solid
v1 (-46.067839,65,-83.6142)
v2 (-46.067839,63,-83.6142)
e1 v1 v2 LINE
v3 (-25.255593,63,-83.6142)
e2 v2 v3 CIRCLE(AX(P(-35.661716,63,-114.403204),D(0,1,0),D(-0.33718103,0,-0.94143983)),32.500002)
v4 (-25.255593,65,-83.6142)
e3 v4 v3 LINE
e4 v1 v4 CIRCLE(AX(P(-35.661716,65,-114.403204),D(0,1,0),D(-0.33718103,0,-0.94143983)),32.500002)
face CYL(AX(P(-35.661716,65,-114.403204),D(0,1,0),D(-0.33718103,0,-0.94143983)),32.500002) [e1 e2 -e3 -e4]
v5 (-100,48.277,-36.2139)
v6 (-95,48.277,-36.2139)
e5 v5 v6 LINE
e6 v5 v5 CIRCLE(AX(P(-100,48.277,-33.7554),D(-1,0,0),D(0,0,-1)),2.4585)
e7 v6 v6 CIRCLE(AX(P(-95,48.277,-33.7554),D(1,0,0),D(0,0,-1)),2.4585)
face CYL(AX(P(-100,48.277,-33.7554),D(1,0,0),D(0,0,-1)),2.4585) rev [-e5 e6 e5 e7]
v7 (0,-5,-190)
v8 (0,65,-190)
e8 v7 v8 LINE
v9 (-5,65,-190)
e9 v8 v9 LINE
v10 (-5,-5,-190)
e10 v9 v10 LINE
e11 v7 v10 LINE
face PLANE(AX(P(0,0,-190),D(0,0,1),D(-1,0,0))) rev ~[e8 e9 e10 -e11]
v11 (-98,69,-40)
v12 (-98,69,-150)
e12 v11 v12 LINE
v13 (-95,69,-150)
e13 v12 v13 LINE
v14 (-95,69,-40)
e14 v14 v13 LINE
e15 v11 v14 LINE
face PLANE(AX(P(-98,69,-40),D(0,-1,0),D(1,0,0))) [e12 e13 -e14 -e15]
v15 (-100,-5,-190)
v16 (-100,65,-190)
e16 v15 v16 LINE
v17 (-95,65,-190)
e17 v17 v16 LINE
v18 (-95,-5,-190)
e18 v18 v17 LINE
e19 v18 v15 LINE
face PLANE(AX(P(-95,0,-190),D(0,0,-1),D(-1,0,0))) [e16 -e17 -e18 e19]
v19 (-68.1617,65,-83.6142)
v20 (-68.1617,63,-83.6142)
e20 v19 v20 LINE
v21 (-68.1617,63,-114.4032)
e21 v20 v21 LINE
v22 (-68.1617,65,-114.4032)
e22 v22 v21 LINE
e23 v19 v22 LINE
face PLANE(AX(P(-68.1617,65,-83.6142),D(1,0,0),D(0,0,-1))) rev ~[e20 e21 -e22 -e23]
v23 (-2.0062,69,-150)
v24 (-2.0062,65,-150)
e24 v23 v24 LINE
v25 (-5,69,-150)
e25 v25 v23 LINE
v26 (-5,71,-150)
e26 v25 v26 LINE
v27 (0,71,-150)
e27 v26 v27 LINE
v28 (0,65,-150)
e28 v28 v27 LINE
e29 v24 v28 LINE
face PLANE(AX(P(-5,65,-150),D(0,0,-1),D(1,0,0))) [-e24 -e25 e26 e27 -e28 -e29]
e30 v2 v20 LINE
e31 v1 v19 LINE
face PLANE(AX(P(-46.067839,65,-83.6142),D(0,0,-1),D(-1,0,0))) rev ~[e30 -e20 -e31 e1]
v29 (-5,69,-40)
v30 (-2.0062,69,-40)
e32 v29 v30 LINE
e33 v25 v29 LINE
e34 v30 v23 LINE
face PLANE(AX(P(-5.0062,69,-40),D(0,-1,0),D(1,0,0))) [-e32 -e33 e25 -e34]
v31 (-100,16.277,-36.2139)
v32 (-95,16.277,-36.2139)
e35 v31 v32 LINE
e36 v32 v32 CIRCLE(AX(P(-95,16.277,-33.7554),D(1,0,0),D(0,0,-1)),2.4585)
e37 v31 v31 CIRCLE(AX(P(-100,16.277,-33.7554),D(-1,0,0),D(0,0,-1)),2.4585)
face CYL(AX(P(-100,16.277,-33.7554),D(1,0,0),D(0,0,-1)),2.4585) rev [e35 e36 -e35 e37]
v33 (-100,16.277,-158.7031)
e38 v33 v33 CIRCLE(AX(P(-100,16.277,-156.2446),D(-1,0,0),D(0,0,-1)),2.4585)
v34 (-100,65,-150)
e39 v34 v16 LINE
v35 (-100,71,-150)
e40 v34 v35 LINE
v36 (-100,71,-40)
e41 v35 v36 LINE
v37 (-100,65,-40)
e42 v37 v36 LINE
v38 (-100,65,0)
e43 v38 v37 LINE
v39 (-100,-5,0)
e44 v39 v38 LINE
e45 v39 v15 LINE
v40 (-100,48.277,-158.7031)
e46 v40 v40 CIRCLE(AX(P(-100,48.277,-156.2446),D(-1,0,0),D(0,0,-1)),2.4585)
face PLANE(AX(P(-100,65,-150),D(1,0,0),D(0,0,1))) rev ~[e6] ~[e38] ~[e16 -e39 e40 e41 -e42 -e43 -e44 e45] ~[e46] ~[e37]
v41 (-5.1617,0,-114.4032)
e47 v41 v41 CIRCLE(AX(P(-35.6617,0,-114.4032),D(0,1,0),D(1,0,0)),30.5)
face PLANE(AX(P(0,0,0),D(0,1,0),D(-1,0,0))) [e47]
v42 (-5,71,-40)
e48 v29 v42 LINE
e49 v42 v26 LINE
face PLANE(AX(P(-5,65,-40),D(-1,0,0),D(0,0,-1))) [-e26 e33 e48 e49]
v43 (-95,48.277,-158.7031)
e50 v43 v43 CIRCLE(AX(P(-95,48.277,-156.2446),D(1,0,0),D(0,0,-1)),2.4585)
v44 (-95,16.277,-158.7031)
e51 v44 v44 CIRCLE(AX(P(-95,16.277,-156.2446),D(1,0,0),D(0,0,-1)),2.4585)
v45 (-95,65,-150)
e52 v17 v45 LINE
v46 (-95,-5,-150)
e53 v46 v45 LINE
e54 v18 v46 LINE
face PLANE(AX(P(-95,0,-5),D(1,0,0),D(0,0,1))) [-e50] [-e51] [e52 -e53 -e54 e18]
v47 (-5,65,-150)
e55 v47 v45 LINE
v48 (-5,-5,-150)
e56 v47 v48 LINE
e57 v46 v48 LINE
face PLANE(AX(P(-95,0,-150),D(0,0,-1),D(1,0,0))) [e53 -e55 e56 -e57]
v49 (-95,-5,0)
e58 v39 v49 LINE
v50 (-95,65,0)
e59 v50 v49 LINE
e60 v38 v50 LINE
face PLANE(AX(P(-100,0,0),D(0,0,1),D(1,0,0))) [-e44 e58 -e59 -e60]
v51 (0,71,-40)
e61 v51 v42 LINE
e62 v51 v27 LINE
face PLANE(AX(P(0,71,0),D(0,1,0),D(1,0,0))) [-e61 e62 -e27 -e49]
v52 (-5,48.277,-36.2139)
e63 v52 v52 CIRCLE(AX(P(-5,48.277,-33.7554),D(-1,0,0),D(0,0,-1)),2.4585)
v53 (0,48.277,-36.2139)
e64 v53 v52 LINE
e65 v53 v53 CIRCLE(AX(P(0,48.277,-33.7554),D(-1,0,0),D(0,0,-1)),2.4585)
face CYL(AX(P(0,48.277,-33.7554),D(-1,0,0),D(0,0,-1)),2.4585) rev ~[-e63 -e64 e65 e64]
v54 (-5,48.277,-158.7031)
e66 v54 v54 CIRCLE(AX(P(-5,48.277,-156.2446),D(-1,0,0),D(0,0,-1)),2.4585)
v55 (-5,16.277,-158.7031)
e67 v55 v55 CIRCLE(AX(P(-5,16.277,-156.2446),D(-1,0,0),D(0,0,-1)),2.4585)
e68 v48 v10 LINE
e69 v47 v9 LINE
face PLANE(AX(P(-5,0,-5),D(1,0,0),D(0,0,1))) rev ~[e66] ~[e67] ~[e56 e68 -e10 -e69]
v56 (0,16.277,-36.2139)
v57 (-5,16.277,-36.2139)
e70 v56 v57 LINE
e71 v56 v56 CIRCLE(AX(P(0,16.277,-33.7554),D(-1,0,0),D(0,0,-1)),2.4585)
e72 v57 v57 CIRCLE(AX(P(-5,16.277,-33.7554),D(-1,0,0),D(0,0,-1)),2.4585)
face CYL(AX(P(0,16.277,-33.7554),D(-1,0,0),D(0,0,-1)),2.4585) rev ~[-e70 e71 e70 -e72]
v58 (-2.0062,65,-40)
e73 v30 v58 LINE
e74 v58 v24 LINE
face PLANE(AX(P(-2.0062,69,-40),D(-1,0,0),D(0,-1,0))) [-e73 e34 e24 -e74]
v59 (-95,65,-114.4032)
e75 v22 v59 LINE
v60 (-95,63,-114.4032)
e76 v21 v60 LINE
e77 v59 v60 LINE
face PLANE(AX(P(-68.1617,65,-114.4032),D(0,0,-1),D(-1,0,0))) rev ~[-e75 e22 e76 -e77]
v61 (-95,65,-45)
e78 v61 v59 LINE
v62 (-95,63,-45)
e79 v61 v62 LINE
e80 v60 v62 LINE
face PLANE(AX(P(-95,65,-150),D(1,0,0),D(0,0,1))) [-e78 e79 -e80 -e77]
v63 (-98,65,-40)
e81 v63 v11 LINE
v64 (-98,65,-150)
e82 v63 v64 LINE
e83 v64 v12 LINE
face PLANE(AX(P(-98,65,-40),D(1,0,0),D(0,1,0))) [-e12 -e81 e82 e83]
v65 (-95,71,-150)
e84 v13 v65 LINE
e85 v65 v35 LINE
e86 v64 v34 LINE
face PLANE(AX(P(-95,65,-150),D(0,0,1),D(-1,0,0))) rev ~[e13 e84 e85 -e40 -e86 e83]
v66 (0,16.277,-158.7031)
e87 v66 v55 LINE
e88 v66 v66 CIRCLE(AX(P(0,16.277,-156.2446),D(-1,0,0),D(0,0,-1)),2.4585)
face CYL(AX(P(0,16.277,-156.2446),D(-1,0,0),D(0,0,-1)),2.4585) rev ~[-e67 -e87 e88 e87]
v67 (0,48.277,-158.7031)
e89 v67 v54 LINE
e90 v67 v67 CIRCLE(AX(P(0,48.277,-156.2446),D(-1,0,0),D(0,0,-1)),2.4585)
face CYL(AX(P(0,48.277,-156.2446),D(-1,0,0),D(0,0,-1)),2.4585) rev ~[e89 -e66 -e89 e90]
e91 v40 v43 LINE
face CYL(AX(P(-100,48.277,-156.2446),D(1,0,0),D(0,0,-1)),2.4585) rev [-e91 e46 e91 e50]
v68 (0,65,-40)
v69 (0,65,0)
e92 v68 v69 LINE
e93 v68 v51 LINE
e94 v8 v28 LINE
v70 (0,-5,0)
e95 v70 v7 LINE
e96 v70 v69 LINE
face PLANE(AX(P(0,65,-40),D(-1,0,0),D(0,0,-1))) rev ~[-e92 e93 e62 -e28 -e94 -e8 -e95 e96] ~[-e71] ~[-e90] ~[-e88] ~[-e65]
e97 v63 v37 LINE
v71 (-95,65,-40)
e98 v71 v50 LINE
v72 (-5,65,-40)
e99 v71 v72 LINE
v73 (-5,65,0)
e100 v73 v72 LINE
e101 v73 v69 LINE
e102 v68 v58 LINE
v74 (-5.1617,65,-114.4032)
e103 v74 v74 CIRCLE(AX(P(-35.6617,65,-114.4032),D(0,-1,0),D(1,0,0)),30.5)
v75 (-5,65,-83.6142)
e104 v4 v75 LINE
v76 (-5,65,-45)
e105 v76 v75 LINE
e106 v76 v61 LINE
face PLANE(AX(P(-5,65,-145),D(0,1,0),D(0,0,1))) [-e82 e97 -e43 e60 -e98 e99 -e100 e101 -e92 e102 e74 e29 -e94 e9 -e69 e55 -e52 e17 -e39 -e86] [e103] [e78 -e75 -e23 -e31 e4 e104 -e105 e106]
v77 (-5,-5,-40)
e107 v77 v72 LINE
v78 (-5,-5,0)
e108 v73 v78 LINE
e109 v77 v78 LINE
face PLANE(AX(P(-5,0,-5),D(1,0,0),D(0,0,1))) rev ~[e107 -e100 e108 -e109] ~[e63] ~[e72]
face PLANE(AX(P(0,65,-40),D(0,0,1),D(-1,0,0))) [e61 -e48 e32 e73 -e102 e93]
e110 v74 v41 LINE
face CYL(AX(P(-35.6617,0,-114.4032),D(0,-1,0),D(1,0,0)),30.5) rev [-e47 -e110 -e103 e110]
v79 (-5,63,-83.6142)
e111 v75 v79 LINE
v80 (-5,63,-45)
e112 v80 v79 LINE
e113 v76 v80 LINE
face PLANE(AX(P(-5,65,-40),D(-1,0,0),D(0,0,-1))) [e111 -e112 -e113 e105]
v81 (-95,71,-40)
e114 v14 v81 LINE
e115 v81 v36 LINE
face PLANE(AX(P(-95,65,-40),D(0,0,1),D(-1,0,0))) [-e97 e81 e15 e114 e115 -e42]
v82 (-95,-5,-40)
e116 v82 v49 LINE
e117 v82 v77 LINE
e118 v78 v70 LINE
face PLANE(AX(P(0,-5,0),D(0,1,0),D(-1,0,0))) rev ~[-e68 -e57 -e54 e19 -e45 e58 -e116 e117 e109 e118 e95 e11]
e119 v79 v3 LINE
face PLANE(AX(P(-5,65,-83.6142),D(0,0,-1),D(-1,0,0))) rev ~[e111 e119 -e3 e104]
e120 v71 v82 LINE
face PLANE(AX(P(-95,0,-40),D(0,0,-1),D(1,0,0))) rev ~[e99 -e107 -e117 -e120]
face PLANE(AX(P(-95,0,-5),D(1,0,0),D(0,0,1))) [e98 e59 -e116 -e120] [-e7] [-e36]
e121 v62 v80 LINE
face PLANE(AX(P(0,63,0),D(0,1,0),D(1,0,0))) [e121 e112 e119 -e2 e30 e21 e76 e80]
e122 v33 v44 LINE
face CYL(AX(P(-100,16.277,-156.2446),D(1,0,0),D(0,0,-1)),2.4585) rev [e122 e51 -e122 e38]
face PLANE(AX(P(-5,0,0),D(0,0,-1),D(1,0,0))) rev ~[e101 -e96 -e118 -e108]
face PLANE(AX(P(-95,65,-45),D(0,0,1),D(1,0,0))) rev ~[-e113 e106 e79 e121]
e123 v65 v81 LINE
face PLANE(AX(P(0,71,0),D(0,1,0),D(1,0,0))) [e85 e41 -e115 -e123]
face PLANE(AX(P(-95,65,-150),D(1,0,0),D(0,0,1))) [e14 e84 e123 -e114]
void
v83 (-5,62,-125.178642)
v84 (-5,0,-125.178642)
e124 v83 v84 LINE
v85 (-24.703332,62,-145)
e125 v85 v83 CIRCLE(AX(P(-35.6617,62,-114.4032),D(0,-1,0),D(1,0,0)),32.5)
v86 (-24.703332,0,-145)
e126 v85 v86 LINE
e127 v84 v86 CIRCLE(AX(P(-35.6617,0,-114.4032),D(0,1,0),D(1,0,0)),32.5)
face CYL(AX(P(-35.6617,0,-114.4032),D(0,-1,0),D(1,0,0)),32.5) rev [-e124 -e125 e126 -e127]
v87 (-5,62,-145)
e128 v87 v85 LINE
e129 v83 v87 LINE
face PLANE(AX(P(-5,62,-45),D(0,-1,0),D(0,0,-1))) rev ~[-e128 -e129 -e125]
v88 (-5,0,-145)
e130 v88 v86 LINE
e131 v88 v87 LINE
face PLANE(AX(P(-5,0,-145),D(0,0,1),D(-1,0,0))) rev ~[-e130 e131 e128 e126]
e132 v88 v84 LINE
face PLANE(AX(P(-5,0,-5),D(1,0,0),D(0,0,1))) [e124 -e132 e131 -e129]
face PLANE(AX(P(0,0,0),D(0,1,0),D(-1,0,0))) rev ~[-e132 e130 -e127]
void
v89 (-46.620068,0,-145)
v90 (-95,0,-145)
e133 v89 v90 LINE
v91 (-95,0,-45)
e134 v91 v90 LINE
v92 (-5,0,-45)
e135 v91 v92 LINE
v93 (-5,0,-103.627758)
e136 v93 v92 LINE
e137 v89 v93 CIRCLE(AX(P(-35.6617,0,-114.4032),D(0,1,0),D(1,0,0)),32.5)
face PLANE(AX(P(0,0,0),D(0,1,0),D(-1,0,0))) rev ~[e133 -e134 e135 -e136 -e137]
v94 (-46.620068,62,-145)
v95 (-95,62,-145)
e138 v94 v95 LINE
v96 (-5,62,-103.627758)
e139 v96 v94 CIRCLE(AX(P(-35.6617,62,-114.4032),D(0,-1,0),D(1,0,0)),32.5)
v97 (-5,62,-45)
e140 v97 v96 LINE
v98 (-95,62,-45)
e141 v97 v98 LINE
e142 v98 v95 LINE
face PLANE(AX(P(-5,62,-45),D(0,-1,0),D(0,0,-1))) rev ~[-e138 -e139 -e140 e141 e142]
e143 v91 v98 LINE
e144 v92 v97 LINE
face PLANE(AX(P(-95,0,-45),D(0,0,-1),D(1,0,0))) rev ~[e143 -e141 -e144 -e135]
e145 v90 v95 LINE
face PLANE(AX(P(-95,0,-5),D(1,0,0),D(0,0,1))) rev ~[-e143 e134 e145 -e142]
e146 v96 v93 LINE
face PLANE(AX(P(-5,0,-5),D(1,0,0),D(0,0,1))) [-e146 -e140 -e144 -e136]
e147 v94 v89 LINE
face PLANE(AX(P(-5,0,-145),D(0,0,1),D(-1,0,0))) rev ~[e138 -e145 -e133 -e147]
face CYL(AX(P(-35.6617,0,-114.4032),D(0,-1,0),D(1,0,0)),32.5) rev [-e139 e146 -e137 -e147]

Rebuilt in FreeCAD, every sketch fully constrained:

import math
import FreeCAD as App
import Part
import Sketcher
from FreeCAD import Vector

doc = App.newDocument("Part")
params = doc.addObject("Spreadsheet::Sheet", "Params")
for row, (alias, value) in enumerate([
    ("sketch1_width", "5 mm"),
    ("sketch1_height", "190 mm"),
    ("pad1_length", "65 mm"),
    ("sketch2_width", "5 mm"),
    ("sketch2_height", "190 mm"),
    ("sketch2_height2", "40 mm"),
    ("pad2_length", "5 mm"),
    ("sketch3_height", "5 mm"),
    ("sketch3_width", "90 mm"),
    ("pad3_length", "65 mm"),
    ("sketch4_height", "5 mm"),
    ("sketch4_width", "90 mm"),
    ("pad4_length", "65 mm"),
    ("sketch5_diameter", "65 mm"),
    ("sketch5_diameter2", "61 mm"),
    ("pad5_length", "65 mm"),
    ("sketch6_width", "3 mm"),
    ("sketch6_height", "100 mm"),
    ("pad6_length", "90 mm"),
    ("sketch7_diameter", "61 mm"),
    ("pocket1_length", "66.5 mm"),
    ("sketch8_radius", "32.5 mm"),
    ("sketch8_width", "90 mm"),
    ("pocket2_length", "2 mm"),
    ("hole_diameter", "4.917 mm"),
    ("hole_depth", "17.1 mm"),
    ("sketch10_width", "5 mm"),
    ("sketch10_height", "110 mm"),
    ("pad7_length", "6 mm"),
    ("sketch11_width", "3 mm"),
    ("sketch11_height", "4 mm"),
    ("pocket3_length", "110 mm"),
], start=1):
    params.set(f"A{row}", alias)
    params.set(f"B{row}", "=" + value)
    params.setAlias(f"B{row}", alias)

body = doc.addObject("PartDesign::Body", "Body")
body.AllowCompound = True

# Sketch on XZ plane
sketch1 = doc.addObject("Sketcher::SketchObject", "Sketch")
body.addObject(sketch1)
sketch1.AttachmentSupport = (doc.XZ_Plane, [""])
sketch1.MapMode = "FlatFace"
sketch1.addGeometry(Part.LineSegment(Vector(-5, 0, 0), Vector(0, 0, 0)), False)
sketch1.addGeometry(Part.LineSegment(Vector(0, 0, 0), Vector(0, -190, 0)), False)
sketch1.addGeometry(Part.LineSegment(Vector(0, -190, 0), Vector(-5, -190, 0)), False)
sketch1.addGeometry(Part.LineSegment(Vector(-5, -190, 0), Vector(-5, 0, 0)), False)
sketch1.addGeometry(Part.LineSegment(Vector(-100, 0, 0), Vector(-95, 0, 0)), False)
sketch1.addGeometry(Part.LineSegment(Vector(-95, 0, 0), Vector(-95, -190, 0)), False)
sketch1.addGeometry(Part.LineSegment(Vector(-95, -190, 0), Vector(-100, -190, 0)), False)
sketch1.addGeometry(Part.LineSegment(Vector(-100, -190, 0), Vector(-100, 0, 0)), False)
sketch1.addConstraint(Sketcher.Constraint("Coincident", 0, 2, 1, 1))
sketch1.addConstraint(Sketcher.Constraint("Coincident", 1, 2, 2, 1))
sketch1.addConstraint(Sketcher.Constraint("Coincident", 2, 2, 3, 1))
sketch1.addConstraint(Sketcher.Constraint("Coincident", 3, 2, 0, 1))
sketch1.addConstraint(Sketcher.Constraint("Coincident", 4, 2, 5, 1))
sketch1.addConstraint(Sketcher.Constraint("Coincident", 5, 2, 6, 1))
sketch1.addConstraint(Sketcher.Constraint("Coincident", 6, 2, 7, 1))
sketch1.addConstraint(Sketcher.Constraint("Coincident", 7, 2, 4, 1))
sketch1.addConstraint(Sketcher.Constraint("Horizontal", 0))
sketch1.addConstraint(Sketcher.Constraint("Vertical", 1))
sketch1.addConstraint(Sketcher.Constraint("Horizontal", 2))
sketch1.addConstraint(Sketcher.Constraint("Vertical", 3))
sketch1.addConstraint(Sketcher.Constraint("Horizontal", 4))
sketch1.addConstraint(Sketcher.Constraint("Vertical", 5))
sketch1.addConstraint(Sketcher.Constraint("Horizontal", 6))
sketch1.addConstraint(Sketcher.Constraint("Vertical", 7))
sketch1.addConstraint(Sketcher.Constraint("Coincident", 0, 2, -1, 1))
sketch1.addConstraint(Sketcher.Constraint("PointOnObject", 4, 2, -1))
sketch1.addConstraint(Sketcher.Constraint("Horizontal", 2, 2, 5, 2))
sketch1.addConstraint(Sketcher.Constraint("Equal", 2, 4))
sketch1.addConstraint(Sketcher.Constraint("DistanceX", 0, 1, 0, 2, 5.0))
sketch1.addConstraint(Sketcher.Constraint("DistanceY", 1, 2, 1, 1, 190.0))
sketch1.addConstraint(Sketcher.Constraint("DistanceX", 6, 2, -1, 1, 100.0))
sketch1.setExpression("Constraints[20]", "Params.sketch1_width")
sketch1.setExpression("Constraints[21]", "Params.sketch1_height")
pad1 = doc.addObject("PartDesign::Pad", "Pad")
body.addObject(pad1)
pad1.Profile = sketch1
pad1.setExpression("Length", "Params.pad1_length")
pad1.Reversed = True

# Sketch on XZ plane
sketch2 = doc.addObject("Sketcher::SketchObject", "Sketch001")
body.addObject(sketch2)
sketch2.AttachmentSupport = (doc.XZ_Plane, [""])
sketch2.MapMode = "FlatFace"
sketch2.addGeometry(Part.LineSegment(Vector(-5, 0, 0), Vector(0, 0, 0)), False)
sketch2.addGeometry(Part.LineSegment(Vector(0, 0, 0), Vector(0, -190, 0)), False)
sketch2.addGeometry(Part.LineSegment(Vector(0, -190, 0), Vector(-5, -190, 0)), False)
sketch2.addGeometry(Part.LineSegment(Vector(-5, -190, 0), Vector(-5, -150, 0)), False)
sketch2.addGeometry(Part.LineSegment(Vector(-5, -150, 0), Vector(-95, -150, 0)), False)
sketch2.addGeometry(Part.LineSegment(Vector(-95, -150, 0), Vector(-95, -190, 0)), False)
sketch2.addGeometry(Part.LineSegment(Vector(-95, -190, 0), Vector(-100, -190, 0)), False)
sketch2.addGeometry(Part.LineSegment(Vector(-100, -190, 0), Vector(-100, 0, 0)), False)
sketch2.addGeometry(Part.LineSegment(Vector(-100, 0, 0), Vector(-95, 0, 0)), False)
sketch2.addGeometry(Part.LineSegment(Vector(-95, 0, 0), Vector(-95, -40, 0)), False)
sketch2.addGeometry(Part.LineSegment(Vector(-95, -40, 0), Vector(-5, -40, 0)), False)
sketch2.addGeometry(Part.LineSegment(Vector(-5, -40, 0), Vector(-5, 0, 0)), False)
sketch2.addConstraint(Sketcher.Constraint("Coincident", 0, 2, 1, 1))
sketch2.addConstraint(Sketcher.Constraint("Coincident", 1, 2, 2, 1))
sketch2.addConstraint(Sketcher.Constraint("Coincident", 2, 2, 3, 1))
sketch2.addConstraint(Sketcher.Constraint("Coincident", 3, 2, 4, 1))
sketch2.addConstraint(Sketcher.Constraint("Coincident", 4, 2, 5, 1))
sketch2.addConstraint(Sketcher.Constraint("Coincident", 5, 2, 6, 1))
sketch2.addConstraint(Sketcher.Constraint("Coincident", 6, 2, 7, 1))
sketch2.addConstraint(Sketcher.Constraint("Coincident", 7, 2, 8, 1))
sketch2.addConstraint(Sketcher.Constraint("Coincident", 8, 2, 9, 1))
sketch2.addConstraint(Sketcher.Constraint("Coincident", 9, 2, 10, 1))
sketch2.addConstraint(Sketcher.Constraint("Coincident", 10, 2, 11, 1))
sketch2.addConstraint(Sketcher.Constraint("Coincident", 11, 2, 0, 1))
sketch2.addConstraint(Sketcher.Constraint("Horizontal", 0))
sketch2.addConstraint(Sketcher.Constraint("Vertical", 1))
sketch2.addConstraint(Sketcher.Constraint("Horizontal", 2))
sketch2.addConstraint(Sketcher.Constraint("Vertical", 3))
sketch2.addConstraint(Sketcher.Constraint("Horizontal", 4))
sketch2.addConstraint(Sketcher.Constraint("Vertical", 5))
sketch2.addConstraint(Sketcher.Constraint("Horizontal", 6))
sketch2.addConstraint(Sketcher.Constraint("Vertical", 7))
sketch2.addConstraint(Sketcher.Constraint("Horizontal", 8))
sketch2.addConstraint(Sketcher.Constraint("Vertical", 9))
sketch2.addConstraint(Sketcher.Constraint("Horizontal", 10))
sketch2.addConstraint(Sketcher.Constraint("Vertical", 11))
sketch2.addConstraint(Sketcher.Constraint("Coincident", 0, 2, -1, 1))
sketch2.addConstraint(Sketcher.Constraint("PointOnObject", 7, 2, -1))
sketch2.addConstraint(Sketcher.Constraint("Horizontal", 2, 2, 5, 2))
sketch2.addConstraint(Sketcher.Constraint("Vertical", 5, 2, 8, 2))
sketch2.addConstraint(Sketcher.Constraint("Vertical", 3, 2, 10, 2))
sketch2.addConstraint(Sketcher.Constraint("Equal", 2, 6))
sketch2.addConstraint(Sketcher.Constraint("Equal", 5, 9))
sketch2.addConstraint(Sketcher.Constraint("DistanceX", 0, 1, 0, 2, 5.0))
sketch2.addConstraint(Sketcher.Constraint("DistanceY", 1, 2, 1, 1, 190.0))
sketch2.addConstraint(Sketcher.Constraint("DistanceX", 6, 2, -1, 1, 100.0))
sketch2.addConstraint(Sketcher.Constraint("DistanceY", 3, 1, 3, 2, 40.0))
sketch2.setExpression("Constraints[31]", "Params.sketch2_width")
sketch2.setExpression("Constraints[32]", "Params.sketch2_height")
sketch2.setExpression("Constraints[34]", "Params.sketch2_height2")
pad2 = doc.addObject("PartDesign::Pad", "Pad001")
body.addObject(pad2)
pad2.Profile = sketch2
pad2.setExpression("Length", "Params.pad2_length")

# Sketch on XZ plane
sketch3 = doc.addObject("Sketcher::SketchObject", "Sketch002")
body.addObject(sketch3)
sketch3.AttachmentSupport = (doc.XZ_Plane, [""])
sketch3.MapMode = "FlatFace"
sketch3.addGeometry(Part.LineSegment(Vector(-95, -145, 0), Vector(-5, -145, 0)), False)
sketch3.addGeometry(Part.LineSegment(Vector(-5, -145, 0), Vector(-5, -150, 0)), False)
sketch3.addGeometry(Part.LineSegment(Vector(-5, -150, 0), Vector(-95, -150, 0)), False)
sketch3.addGeometry(Part.LineSegment(Vector(-95, -150, 0), Vector(-95, -145, 0)), False)
sketch3.addConstraint(Sketcher.Constraint("Coincident", 0, 2, 1, 1))
sketch3.addConstraint(Sketcher.Constraint("Coincident", 1, 2, 2, 1))
sketch3.addConstraint(Sketcher.Constraint("Coincident", 2, 2, 3, 1))
sketch3.addConstraint(Sketcher.Constraint("Coincident", 3, 2, 0, 1))
sketch3.addConstraint(Sketcher.Constraint("Horizontal", 0))
sketch3.addConstraint(Sketcher.Constraint("Vertical", 1))
sketch3.addConstraint(Sketcher.Constraint("Horizontal", 2))
sketch3.addConstraint(Sketcher.Constraint("Vertical", 3))
sketch3.addConstraint(Sketcher.Constraint("DistanceY", 1, 2, 1, 1, 5.0))
sketch3.addConstraint(Sketcher.Constraint("DistanceX", 0, 2, -1, 1, 5.0))
sketch3.addConstraint(Sketcher.Constraint("DistanceX", 0, 1, 0, 2, 90.0))
sketch3.addConstraint(Sketcher.Constraint("DistanceY", 0, 2, -1, 1, 145.0))
sketch3.setExpression("Constraints[8]", "Params.sketch3_height")
sketch3.setExpression("Constraints[10]", "Params.sketch3_width")
pad3 = doc.addObject("PartDesign::Pad", "Pad002")
body.addObject(pad3)
pad3.Profile = sketch3
pad3.setExpression("Length", "Params.pad3_length")
pad3.Reversed = True

# Sketch on XZ plane
sketch4 = doc.addObject("Sketcher::SketchObject", "Sketch003")
body.addObject(sketch4)
sketch4.AttachmentSupport = (doc.XZ_Plane, [""])
sketch4.MapMode = "FlatFace"
sketch4.addGeometry(Part.LineSegment(Vector(-95, -40, 0), Vector(-5, -40, 0)), False)
sketch4.addGeometry(Part.LineSegment(Vector(-5, -40, 0), Vector(-5, -45, 0)), False)
sketch4.addGeometry(Part.LineSegment(Vector(-5, -45, 0), Vector(-95, -45, 0)), False)
sketch4.addGeometry(Part.LineSegment(Vector(-95, -45, 0), Vector(-95, -40, 0)), False)
sketch4.addConstraint(Sketcher.Constraint("Coincident", 0, 2, 1, 1))
sketch4.addConstraint(Sketcher.Constraint("Coincident", 1, 2, 2, 1))
sketch4.addConstraint(Sketcher.Constraint("Coincident", 2, 2, 3, 1))
sketch4.addConstraint(Sketcher.Constraint("Coincident", 3, 2, 0, 1))
sketch4.addConstraint(Sketcher.Constraint("Horizontal", 0))
sketch4.addConstraint(Sketcher.Constraint("Vertical", 1))
sketch4.addConstraint(Sketcher.Constraint("Horizontal", 2))
sketch4.addConstraint(Sketcher.Constraint("Vertical", 3))
sketch4.addConstraint(Sketcher.Constraint("DistanceY", 1, 2, 1, 1, 5.0))
sketch4.addConstraint(Sketcher.Constraint("DistanceX", 0, 2, -1, 1, 5.0))
sketch4.addConstraint(Sketcher.Constraint("DistanceX", 0, 1, 0, 2, 90.0))
sketch4.addConstraint(Sketcher.Constraint("DistanceY", 0, 2, -1, 1, 40.0))
sketch4.setExpression("Constraints[8]", "Params.sketch4_height")
sketch4.setExpression("Constraints[10]", "Params.sketch4_width")
pad4 = doc.addObject("PartDesign::Pad", "Pad003")
body.addObject(pad4)
pad4.Profile = sketch4
pad4.setExpression("Length", "Params.pad4_length")
pad4.Reversed = True

# Sketch on XZ plane
sketch5 = doc.addObject("Sketcher::SketchObject", "Sketch004")
body.addObject(sketch5)
sketch5.AttachmentSupport = (doc.XZ_Plane, [""])
sketch5.MapMode = "FlatFace"
sketch5.addGeometry(Part.Circle(Vector(-36, -114, 0), Vector(0, 0, 1), 32), False)
sketch5.addGeometry(Part.Circle(Vector(-36, -114, 0), Vector(0, 0, 1), 30), False)
sketch5.addConstraint(Sketcher.Constraint("Coincident", 1, 3, 0, 3))
sketch5.addConstraint(Sketcher.Constraint("Diameter", 0, 65.0))
sketch5.addConstraint(Sketcher.Constraint("Diameter", 1, 61.0))
sketch5.addConstraint(Sketcher.Constraint("DistanceX", 0, 3, -1, 1, 35.6617))
sketch5.addConstraint(Sketcher.Constraint("DistanceY", 0, 3, -1, 1, 114.4032))
sketch5.setExpression("Constraints[1]", "Params.sketch5_diameter")
sketch5.setExpression("Constraints[2]", "Params.sketch5_diameter2")
pad5 = doc.addObject("PartDesign::Pad", "Pad004")
body.addObject(pad5)
pad5.Profile = sketch5
pad5.setExpression("Length", "Params.pad5_length")
pad5.Reversed = True

# Sketch on YZ plane
sketch6 = doc.addObject("Sketcher::SketchObject", "Sketch005")
body.addObject(sketch6)
sketch6.AttachmentSupport = (doc.YZ_Plane, [""])
sketch6.MapMode = "FlatFace"
sketch6.AttachmentOffset = App.Placement(Vector(0, 0, -5), App.Rotation())
sketch6.addGeometry(Part.LineSegment(Vector(65, -45, 0), Vector(65, -145, 0)), False)
sketch6.addGeometry(Part.LineSegment(Vector(65, -145, 0), Vector(62, -145, 0)), False)
sketch6.addGeometry(Part.LineSegment(Vector(62, -145, 0), Vector(62, -45, 0)), False)
sketch6.addGeometry(Part.LineSegment(Vector(62, -45, 0), Vector(65, -45, 0)), False)
sketch6.addConstraint(Sketcher.Constraint("Coincident", 0, 2, 1, 1))
sketch6.addConstraint(Sketcher.Constraint("Coincident", 1, 2, 2, 1))
sketch6.addConstraint(Sketcher.Constraint("Coincident", 2, 2, 3, 1))
sketch6.addConstraint(Sketcher.Constraint("Coincident", 3, 2, 0, 1))
sketch6.addConstraint(Sketcher.Constraint("Vertical", 0))
sketch6.addConstraint(Sketcher.Constraint("Horizontal", 1))
sketch6.addConstraint(Sketcher.Constraint("Vertical", 2))
sketch6.addConstraint(Sketcher.Constraint("Horizontal", 3))
sketch6.addConstraint(Sketcher.Constraint("DistanceX", 1, 2, 1, 1, 3.0))
sketch6.addConstraint(Sketcher.Constraint("DistanceY", 0, 2, 0, 1, 100.0))
sketch6.addConstraint(Sketcher.Constraint("DistanceX", -1, 1, 0, 2, 65.0))
sketch6.addConstraint(Sketcher.Constraint("DistanceY", 0, 2, -1, 1, 145.0))
sketch6.setExpression("Constraints[8]", "Params.sketch6_width")
sketch6.setExpression("Constraints[9]", "Params.sketch6_height")
pad6 = doc.addObject("PartDesign::Pad", "Pad005")
body.addObject(pad6)
pad6.Profile = sketch6
pad6.setExpression("Length", "Params.pad6_length")
pad6.Reversed = True

# Sketch on XZ plane
sketch7 = doc.addObject("Sketcher::SketchObject", "Sketch006")
body.addObject(sketch7)
sketch7.AttachmentSupport = (doc.XZ_Plane, [""])
sketch7.MapMode = "FlatFace"
sketch7.addGeometry(Part.Circle(Vector(-36, -114, 0), Vector(0, 0, 1), 30), False)
sketch7.addConstraint(Sketcher.Constraint("Diameter", 0, 61.0))
sketch7.addConstraint(Sketcher.Constraint("DistanceX", 0, 3, -1, 1, 35.6617))
sketch7.addConstraint(Sketcher.Constraint("DistanceY", 0, 3, -1, 1, 114.4032))
sketch7.setExpression("Constraints[0]", "Params.sketch7_diameter")
pocket1 = doc.addObject("PartDesign::Pocket", "Pocket")
body.addObject(pocket1)
pocket1.Profile = sketch7
pocket1.setExpression("Length", "Params.pocket1_length")

# Sketch on XZ plane
sketch8 = doc.addObject("Sketcher::SketchObject", "Sketch007")
body.addObject(sketch8)
sketch8.AttachmentSupport = (doc.XZ_Plane, [""])
sketch8.MapMode = "FlatFace"
sketch8.AttachmentOffset = App.Placement(Vector(0, 0, -65), App.Rotation())
sketch8.addGeometry(Part.LineSegment(Vector(-68, -114, 0), Vector(-95, -114, 0)), False)
sketch8.addGeometry(Part.LineSegment(Vector(-95, -114, 0), Vector(-95, -45, 0)), False)
sketch8.addGeometry(Part.LineSegment(Vector(-95, -45, 0), Vector(-5, -45, 0)), False)
sketch8.addGeometry(Part.LineSegment(Vector(-5, -45, 0), Vector(-5, -84, 0)), False)
sketch8.addGeometry(Part.LineSegment(Vector(-5, -84, 0), Vector(-25, -84, 0)), False)
sketch8.addGeometry(Part.ArcOfCircle(Part.Circle(Vector(-36, -114, 0), Vector(0, 0, 1), 33), math.radians(71), math.radians(109)), False)
sketch8.addGeometry(Part.LineSegment(Vector(-46, -84, 0), Vector(-68, -84, 0)), False)
sketch8.addGeometry(Part.LineSegment(Vector(-68, -84, 0), Vector(-68, -114, 0)), False)
sketch8.addConstraint(Sketcher.Constraint("Coincident", 0, 2, 1, 1))
sketch8.addConstraint(Sketcher.Constraint("Coincident", 1, 2, 2, 1))
sketch8.addConstraint(Sketcher.Constraint("Coincident", 2, 2, 3, 1))
sketch8.addConstraint(Sketcher.Constraint("Coincident", 3, 2, 4, 1))
sketch8.addConstraint(Sketcher.Constraint("Coincident", 4, 2, 5, 1))
sketch8.addConstraint(Sketcher.Constraint("Coincident", 5, 2, 6, 1))
sketch8.addConstraint(Sketcher.Constraint("Coincident", 6, 2, 7, 1))
sketch8.addConstraint(Sketcher.Constraint("Coincident", 7, 2, 0, 1))
sketch8.addConstraint(Sketcher.Constraint("Horizontal", 0))
sketch8.addConstraint(Sketcher.Constraint("Vertical", 1))
sketch8.addConstraint(Sketcher.Constraint("Horizontal", 2))
sketch8.addConstraint(Sketcher.Constraint("Vertical", 3))
sketch8.addConstraint(Sketcher.Constraint("Horizontal", 4))
sketch8.addConstraint(Sketcher.Constraint("Horizontal", 6))
sketch8.addConstraint(Sketcher.Constraint("Vertical", 7))
sketch8.addConstraint(Sketcher.Constraint("Horizontal", 5, 3, 0, 2))
sketch8.addConstraint(Sketcher.Constraint("Horizontal", 4, 2, 5, 2))
sketch8.addConstraint(Sketcher.Constraint("Radius", 5, 32.5))
sketch8.addConstraint(Sketcher.Constraint("DistanceX", 2, 1, 2, 2, 90.0))
sketch8.addConstraint(Sketcher.Constraint("DistanceX", 0, 2, -1, 1, 95.0))
sketch8.addConstraint(Sketcher.Constraint("DistanceY", 1, 2, -1, 1, 45.0))
sketch8.addConstraint(Sketcher.Constraint("DistanceX", 6, 2, 5, 3, 32.5))
sketch8.addConstraint(Sketcher.Constraint("DistanceY", 7, 2, 7, 1, 30.789))
sketch8.addConstraint(Sketcher.Constraint("DistanceX", 0, 2, 0, 1, 26.8383))
sketch8.addConstraint(Sketcher.Constraint("DistanceY", 1, 1, 1, 2, 69.4032))
sketch8.setExpression("Constraints[17]", "Params.sketch8_radius")
sketch8.setExpression("Constraints[18]", "Params.sketch8_width")
pocket2 = doc.addObject("PartDesign::Pocket", "Pocket001")
body.addObject(pocket2)
pocket2.Profile = sketch8
pocket2.setExpression("Length", "Params.pocket2_length")
pocket2.Reversed = True

# Sketch on YZ plane
sketch9 = doc.addObject("Sketcher::SketchObject", "Sketch008")
body.addObject(sketch9)
sketch9.AttachmentSupport = (doc.YZ_Plane, [""])
sketch9.MapMode = "FlatFace"
sketch9.addGeometry(Part.Circle(Vector(48.3, -33.8, 0), Vector(0, 0, 1), 2.5), False)
sketch9.addGeometry(Part.Circle(Vector(16.3, -33.8, 0), Vector(0, 0, 1), 2.5), False)
sketch9.addGeometry(Part.Circle(Vector(16.3, -156.2, 0), Vector(0, 0, 1), 2.5), False)
sketch9.addGeometry(Part.Circle(Vector(48.3, -156.2, 0), Vector(0, 0, 1), 2.5), False)
sketch9.addConstraint(Sketcher.Constraint("Equal", 0, 1))
sketch9.addConstraint(Sketcher.Constraint("Equal", 1, 2))
sketch9.addConstraint(Sketcher.Constraint("Equal", 2, 3))
sketch9.addConstraint(Sketcher.Constraint("Horizontal", 0, 3, 1, 3))
sketch9.addConstraint(Sketcher.Constraint("Horizontal", 2, 3, 3, 3))
sketch9.addConstraint(Sketcher.Constraint("Vertical", 1, 3, 2, 3))
sketch9.addConstraint(Sketcher.Constraint("Vertical", 0, 3, 3, 3))
sketch9.addConstraint(Sketcher.Constraint("Diameter", 0, 4.917))
sketch9.addConstraint(Sketcher.Constraint("DistanceX", 1, 3, 0, 3, 32.0))
sketch9.addConstraint(Sketcher.Constraint("DistanceX", -1, 1, 0, 3, 48.277))
sketch9.addConstraint(Sketcher.Constraint("DistanceY", 0, 3, -1, 1, 33.7554))
sketch9.addConstraint(Sketcher.Constraint("DistanceY", 2, 3, -1, 1, 156.2446))
doc.recompute()
hole = doc.addObject("PartDesign::Hole", "Hole")
body.addObject(hole)
hole.Profile = sketch9
hole.ThreadType = "None"
hole.setExpression("Diameter", "Params.hole_diameter")
hole.DepthType = "Dimension"
hole.setExpression("Depth", "Params.hole_depth")
hole.DrillPoint = "Flat"
doc.recompute()

datumplane = doc.addObject("PartDesign::Plane", "DatumPlane")
body.addObject(datumplane)
datumplane.AttachmentSupport = (doc.YZ_Plane, [""])
datumplane.MapMode = "FlatFace"
datumplane.AttachmentOffset = App.Placement(Vector(0, 0, -50), App.Rotation())
mirrored = doc.addObject("PartDesign::Mirrored", "Mirrored")
body.addObject(mirrored)
mirrored.Originals = [hole]
mirrored.MirrorPlane = (datumplane, [""])
body.Tip = mirrored

# Sketch on XZ plane
sketch10 = doc.addObject("Sketcher::SketchObject", "Sketch009")
body.addObject(sketch10)
sketch10.AttachmentSupport = (doc.XZ_Plane, [""])
sketch10.MapMode = "FlatFace"
sketch10.AttachmentOffset = App.Placement(Vector(0, 0, -65), App.Rotation())
sketch10.addGeometry(Part.LineSegment(Vector(-95, -40, 0), Vector(-95, -150, 0)), False)
sketch10.addGeometry(Part.LineSegment(Vector(-95, -150, 0), Vector(-100, -150, 0)), False)
sketch10.addGeometry(Part.LineSegment(Vector(-100, -150, 0), Vector(-100, -40, 0)), False)
sketch10.addGeometry(Part.LineSegment(Vector(-100, -40, 0), Vector(-95, -40, 0)), False)
sketch10.addGeometry(Part.LineSegment(Vector(-5, -150, 0), Vector(-5, -40, 0)), False)
sketch10.addGeometry(Part.LineSegment(Vector(-5, -40, 0), Vector(0, -40, 0)), False)
sketch10.addGeometry(Part.LineSegment(Vector(0, -40, 0), Vector(0, -150, 0)), False)
sketch10.addGeometry(Part.LineSegment(Vector(0, -150, 0), Vector(-5, -150, 0)), False)
sketch10.addConstraint(Sketcher.Constraint("Coincident", 0, 2, 1, 1))
sketch10.addConstraint(Sketcher.Constraint("Coincident", 1, 2, 2, 1))
sketch10.addConstraint(Sketcher.Constraint("Coincident", 2, 2, 3, 1))
sketch10.addConstraint(Sketcher.Constraint("Coincident", 3, 2, 0, 1))
sketch10.addConstraint(Sketcher.Constraint("Coincident", 4, 2, 5, 1))
sketch10.addConstraint(Sketcher.Constraint("Coincident", 5, 2, 6, 1))
sketch10.addConstraint(Sketcher.Constraint("Coincident", 6, 2, 7, 1))
sketch10.addConstraint(Sketcher.Constraint("Coincident", 7, 2, 4, 1))
sketch10.addConstraint(Sketcher.Constraint("Vertical", 0))
sketch10.addConstraint(Sketcher.Constraint("Horizontal", 1))
sketch10.addConstraint(Sketcher.Constraint("Vertical", 2))
sketch10.addConstraint(Sketcher.Constraint("Horizontal", 3))
sketch10.addConstraint(Sketcher.Constraint("Vertical", 4))
sketch10.addConstraint(Sketcher.Constraint("Horizontal", 5))
sketch10.addConstraint(Sketcher.Constraint("Vertical", 6))
sketch10.addConstraint(Sketcher.Constraint("Horizontal", 7))
sketch10.addConstraint(Sketcher.Constraint("PointOnObject", 5, 2, -2))
sketch10.addConstraint(Sketcher.Constraint("Horizontal", 3, 2, 4, 2))
sketch10.addConstraint(Sketcher.Constraint("Horizontal", 1, 2, 6, 2))
sketch10.addConstraint(Sketcher.Constraint("Equal", 3, 5))
sketch10.addConstraint(Sketcher.Constraint("DistanceX", 1, 2, 1, 1, 5.0))
sketch10.addConstraint(Sketcher.Constraint("DistanceY", 0, 2, 0, 1, 110.0))
sketch10.addConstraint(Sketcher.Constraint("DistanceX", 0, 2, -1, 1, 95.0))
sketch10.addConstraint(Sketcher.Constraint("DistanceY", 0, 2, -1, 1, 150.0))
sketch10.setExpression("Constraints[20]", "Params.sketch10_width")
sketch10.setExpression("Constraints[21]", "Params.sketch10_height")
pad7 = doc.addObject("PartDesign::Pad", "Pad006")
body.addObject(pad7)
pad7.Profile = sketch10
pad7.setExpression("Length", "Params.pad7_length")
pad7.Reversed = True

# Sketch on XY plane
sketch11 = doc.addObject("Sketcher::SketchObject", "Sketch010")
body.addObject(sketch11)
sketch11.AttachmentSupport = (doc.XY_Plane, [""])
sketch11.MapMode = "FlatFace"
sketch11.AttachmentOffset = App.Placement(Vector(0, 0, -40), App.Rotation())
sketch11.addGeometry(Part.LineSegment(Vector(-98, 65, 0), Vector(-95, 65, 0)), False)
sketch11.addGeometry(Part.LineSegment(Vector(-95, 65, 0), Vector(-95, 69, 0)), False)
sketch11.addGeometry(Part.LineSegment(Vector(-95, 69, 0), Vector(-98, 69, 0)), False)
sketch11.addGeometry(Part.LineSegment(Vector(-98, 69, 0), Vector(-98, 65, 0)), False)
sketch11.addGeometry(Part.LineSegment(Vector(-2, 69, 0), Vector(-5, 69, 0)), False)
sketch11.addGeometry(Part.LineSegment(Vector(-5, 69, 0), Vector(-5, 65, 0)), False)
sketch11.addGeometry(Part.LineSegment(Vector(-5, 65, 0), Vector(-2, 65, 0)), False)
sketch11.addGeometry(Part.LineSegment(Vector(-2, 65, 0), Vector(-2, 69, 0)), False)
sketch11.addConstraint(Sketcher.Constraint("Coincident", 0, 2, 1, 1))
sketch11.addConstraint(Sketcher.Constraint("Coincident", 1, 2, 2, 1))
sketch11.addConstraint(Sketcher.Constraint("Coincident", 2, 2, 3, 1))
sketch11.addConstraint(Sketcher.Constraint("Coincident", 3, 2, 0, 1))
sketch11.addConstraint(Sketcher.Constraint("Coincident", 4, 2, 5, 1))
sketch11.addConstraint(Sketcher.Constraint("Coincident", 5, 2, 6, 1))
sketch11.addConstraint(Sketcher.Constraint("Coincident", 6, 2, 7, 1))
sketch11.addConstraint(Sketcher.Constraint("Coincident", 7, 2, 4, 1))
sketch11.addConstraint(Sketcher.Constraint("Horizontal", 0))
sketch11.addConstraint(Sketcher.Constraint("Vertical", 1))
sketch11.addConstraint(Sketcher.Constraint("Horizontal", 2))
sketch11.addConstraint(Sketcher.Constraint("Vertical", 3))
sketch11.addConstraint(Sketcher.Constraint("Horizontal", 4))
sketch11.addConstraint(Sketcher.Constraint("Vertical", 5))
sketch11.addConstraint(Sketcher.Constraint("Horizontal", 6))
sketch11.addConstraint(Sketcher.Constraint("Vertical", 7))
sketch11.addConstraint(Sketcher.Constraint("Horizontal", 2, 2, 4, 2))
sketch11.addConstraint(Sketcher.Constraint("Horizontal", 3, 2, 5, 2))
sketch11.addConstraint(Sketcher.Constraint("Equal", 2, 4))
sketch11.addConstraint(Sketcher.Constraint("DistanceX", 0, 1, 0, 2, 3.0))
sketch11.addConstraint(Sketcher.Constraint("DistanceY", 1, 1, 1, 2, 4.0))
sketch11.addConstraint(Sketcher.Constraint("DistanceX", 0, 2, -1, 1, 95.0))
sketch11.addConstraint(Sketcher.Constraint("DistanceY", -1, 1, 0, 2, 65.0))
sketch11.addConstraint(Sketcher.Constraint("DistanceX", 4, 2, -1, 1, 5.0062))
sketch11.setExpression("Constraints[19]", "Params.sketch11_width")
sketch11.setExpression("Constraints[20]", "Params.sketch11_height")
pocket3 = doc.addObject("PartDesign::Pocket", "Pocket002")
body.addObject(pocket3)
pocket3.Profile = sketch11
pocket3.setExpression("Length", "Params.pocket3_length")

doc.recompute()
